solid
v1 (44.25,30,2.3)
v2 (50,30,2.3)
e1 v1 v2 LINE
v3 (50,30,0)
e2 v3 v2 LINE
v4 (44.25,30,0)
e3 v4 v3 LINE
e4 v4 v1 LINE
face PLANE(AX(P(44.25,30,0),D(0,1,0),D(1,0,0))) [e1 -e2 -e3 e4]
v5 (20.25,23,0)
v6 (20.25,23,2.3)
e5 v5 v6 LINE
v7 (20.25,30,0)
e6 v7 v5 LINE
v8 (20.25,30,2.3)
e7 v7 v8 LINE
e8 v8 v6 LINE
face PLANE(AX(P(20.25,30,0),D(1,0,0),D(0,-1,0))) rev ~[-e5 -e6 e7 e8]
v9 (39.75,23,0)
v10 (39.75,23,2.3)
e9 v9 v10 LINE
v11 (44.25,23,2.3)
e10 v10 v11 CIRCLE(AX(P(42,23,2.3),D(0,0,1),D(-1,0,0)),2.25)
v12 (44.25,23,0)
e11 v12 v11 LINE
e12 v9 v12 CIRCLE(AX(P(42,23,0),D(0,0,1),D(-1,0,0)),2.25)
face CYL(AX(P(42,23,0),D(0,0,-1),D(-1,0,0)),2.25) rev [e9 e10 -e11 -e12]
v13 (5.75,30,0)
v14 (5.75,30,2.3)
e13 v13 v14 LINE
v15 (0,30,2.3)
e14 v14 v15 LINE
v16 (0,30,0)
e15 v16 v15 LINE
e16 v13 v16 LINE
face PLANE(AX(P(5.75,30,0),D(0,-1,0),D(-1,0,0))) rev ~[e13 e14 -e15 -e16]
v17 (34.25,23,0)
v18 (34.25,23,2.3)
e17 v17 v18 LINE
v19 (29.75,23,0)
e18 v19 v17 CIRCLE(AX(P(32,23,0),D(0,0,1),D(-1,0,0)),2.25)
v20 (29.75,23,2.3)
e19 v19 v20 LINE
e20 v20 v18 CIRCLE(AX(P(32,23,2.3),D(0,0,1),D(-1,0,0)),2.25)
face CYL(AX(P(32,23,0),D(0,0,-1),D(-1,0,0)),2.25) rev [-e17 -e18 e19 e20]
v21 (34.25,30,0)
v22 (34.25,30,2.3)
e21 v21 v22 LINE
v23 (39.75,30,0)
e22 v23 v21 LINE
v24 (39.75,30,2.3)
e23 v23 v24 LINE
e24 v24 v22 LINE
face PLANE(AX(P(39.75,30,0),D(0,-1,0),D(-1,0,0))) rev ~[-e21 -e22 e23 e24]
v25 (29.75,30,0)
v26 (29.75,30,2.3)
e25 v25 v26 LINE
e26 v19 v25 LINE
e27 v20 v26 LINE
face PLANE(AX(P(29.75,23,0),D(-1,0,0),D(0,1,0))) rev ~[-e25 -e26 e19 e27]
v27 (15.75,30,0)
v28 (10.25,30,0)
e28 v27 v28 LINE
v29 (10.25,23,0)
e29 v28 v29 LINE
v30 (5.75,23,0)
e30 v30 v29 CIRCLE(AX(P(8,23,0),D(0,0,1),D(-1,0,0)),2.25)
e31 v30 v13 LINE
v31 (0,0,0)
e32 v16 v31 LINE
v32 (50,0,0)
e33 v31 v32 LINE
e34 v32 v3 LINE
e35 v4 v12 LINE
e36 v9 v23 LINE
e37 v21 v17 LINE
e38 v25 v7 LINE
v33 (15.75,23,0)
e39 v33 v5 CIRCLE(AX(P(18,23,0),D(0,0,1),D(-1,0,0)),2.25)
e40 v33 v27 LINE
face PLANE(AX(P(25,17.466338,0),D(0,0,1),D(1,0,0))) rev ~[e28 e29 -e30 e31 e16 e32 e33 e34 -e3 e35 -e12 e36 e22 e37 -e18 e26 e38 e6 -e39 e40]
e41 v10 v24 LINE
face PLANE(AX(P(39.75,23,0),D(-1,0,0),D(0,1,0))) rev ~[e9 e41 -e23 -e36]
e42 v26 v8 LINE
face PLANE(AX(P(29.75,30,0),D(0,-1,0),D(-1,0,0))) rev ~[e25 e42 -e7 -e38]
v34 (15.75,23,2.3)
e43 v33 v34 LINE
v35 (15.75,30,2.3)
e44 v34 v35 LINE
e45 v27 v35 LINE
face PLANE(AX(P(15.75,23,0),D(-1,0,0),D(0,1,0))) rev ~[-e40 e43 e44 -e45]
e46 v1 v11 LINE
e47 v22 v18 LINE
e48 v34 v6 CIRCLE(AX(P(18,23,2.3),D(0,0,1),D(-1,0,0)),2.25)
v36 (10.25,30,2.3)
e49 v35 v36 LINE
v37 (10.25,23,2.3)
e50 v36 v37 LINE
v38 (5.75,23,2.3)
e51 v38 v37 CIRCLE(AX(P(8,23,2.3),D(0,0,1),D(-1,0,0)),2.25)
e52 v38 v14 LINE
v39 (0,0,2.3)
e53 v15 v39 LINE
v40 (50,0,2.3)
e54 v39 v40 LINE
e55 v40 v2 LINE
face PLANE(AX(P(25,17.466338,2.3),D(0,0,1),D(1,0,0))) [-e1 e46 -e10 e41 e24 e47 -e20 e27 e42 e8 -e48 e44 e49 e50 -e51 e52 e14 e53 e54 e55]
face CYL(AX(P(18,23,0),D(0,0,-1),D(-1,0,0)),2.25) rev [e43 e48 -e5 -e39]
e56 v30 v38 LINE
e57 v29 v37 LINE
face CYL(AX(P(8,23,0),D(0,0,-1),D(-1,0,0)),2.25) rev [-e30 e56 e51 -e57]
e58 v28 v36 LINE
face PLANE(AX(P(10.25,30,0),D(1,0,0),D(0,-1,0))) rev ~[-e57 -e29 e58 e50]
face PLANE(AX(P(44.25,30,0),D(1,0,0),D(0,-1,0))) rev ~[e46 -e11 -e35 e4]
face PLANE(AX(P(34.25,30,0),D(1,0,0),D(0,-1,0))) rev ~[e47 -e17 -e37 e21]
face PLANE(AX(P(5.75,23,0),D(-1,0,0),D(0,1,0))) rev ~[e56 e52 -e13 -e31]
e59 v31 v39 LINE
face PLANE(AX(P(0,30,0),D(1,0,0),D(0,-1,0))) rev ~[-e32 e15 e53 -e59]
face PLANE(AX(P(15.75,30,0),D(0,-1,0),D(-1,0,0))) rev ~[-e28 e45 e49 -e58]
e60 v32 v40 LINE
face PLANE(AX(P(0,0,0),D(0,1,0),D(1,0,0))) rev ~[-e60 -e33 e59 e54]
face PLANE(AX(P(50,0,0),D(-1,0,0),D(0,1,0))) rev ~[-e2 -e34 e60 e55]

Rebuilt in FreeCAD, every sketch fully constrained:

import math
import FreeCAD as App
import Part
import Sketcher
from FreeCAD import Vector
Q = App.Units.Quantity

doc = App.newDocument("Part")
body = doc.addObject("PartDesign::Body", "Body")

# Sketch on XY plane
sketch1 = body.newObject("Sketcher::SketchObject", "Sketch")
sketch1.AttachmentSupport = (doc.getObject("XY_Plane"), [""])
sketch1.MapMode = "FlatFace"
sketch1.addGeometry(Part.LineSegment(Vector(0, 0, 0), Vector(50, 0, 0)), False)
sketch1.addGeometry(Part.LineSegment(Vector(50, 0, 0), Vector(50, 30, 0)), False)
sketch1.addGeometry(Part.LineSegment(Vector(50, 30, 0), Vector(44.25, 30, 0)), False)
sketch1.addGeometry(Part.LineSegment(Vector(44.25, 30, 0), Vector(44.25, 23, 0)), False)
sketch1.addGeometry(Part.ArcOfCircle(Part.Circle(Vector(42, 23, 0), Vector(0, 0, 1), 2.25), math.radians(180), math.radians(360)), False)
sketch1.addGeometry(Part.LineSegment(Vector(39.75, 23, 0), Vector(39.75, 30, 0)), False)
sketch1.addGeometry(Part.LineSegment(Vector(39.75, 30, 0), Vector(34.25, 30, 0)), False)
sketch1.addGeometry(Part.LineSegment(Vector(34.25, 30, 0), Vector(34.25, 23, 0)), False)
sketch1.addGeometry(Part.ArcOfCircle(Part.Circle(Vector(32, 23, 0), Vector(0, 0, 1), 2.25), math.radians(180), math.radians(360)), False)
sketch1.addGeometry(Part.LineSegment(Vector(29.75, 23, 0), Vector(29.75, 30, 0)), False)
sketch1.addGeometry(Part.LineSegment(Vector(29.75, 30, 0), Vector(20.25, 30, 0)), False)
sketch1.addGeometry(Part.LineSegment(Vector(20.25, 30, 0), Vector(20.25, 23, 0)), False)
sketch1.addGeometry(Part.ArcOfCircle(Part.Circle(Vector(18, 23, 0), Vector(0, 0, 1), 2.25), math.radians(180), math.radians(360)), False)
sketch1.addGeometry(Part.LineSegment(Vector(15.75, 23, 0), Vector(15.75, 30, 0)), False)
sketch1.addGeometry(Part.LineSegment(Vector(15.75, 30, 0), Vector(10.25, 30, 0)), False)
sketch1.addGeometry(Part.LineSegment(Vector(10.25, 30, 0), Vector(10.25, 23, 0)), False)
sketch1.addGeometry(Part.ArcOfCircle(Part.Circle(Vector(8, 23, 0), Vector(0, 0, 1), 2.25), math.radians(180), math.radians(360)), False)
sketch1.addGeometry(Part.LineSegment(Vector(5.75, 23, 0), Vector(5.75, 30, 0)), False)
sketch1.addGeometry(Part.LineSegment(Vector(5.75, 30, 0), Vector(0, 30, 0)), False)
sketch1.addGeometry(Part.LineSegment(Vector(0, 30, 0), Vector(0, 0, 0)), False)
sketch1.addConstraint(Sketcher.Constraint("Coincident", 0, 2, 1, 1))
sketch1.addConstraint(Sketcher.Constraint("Coincident", 1, 2, 2, 1))
sketch1.addConstraint(Sketcher.Constraint("Coincident", 2, 2, 3, 1))
sketch1.addConstraint(Sketcher.Constraint("Tangent", 3, 2, 4, 2))
sketch1.addConstraint(Sketcher.Constraint("Tangent", 4, 1, 5, 1))
sketch1.addConstraint(Sketcher.Constraint("Coincident", 5, 2, 6, 1))
sketch1.addConstraint(Sketcher.Constraint("Coincident", 6, 2, 7, 1))
sketch1.addConstraint(Sketcher.Constraint("Tangent", 7, 2, 8, 2))
sketch1.addConstraint(Sketcher.Constraint("Tangent", 8, 1, 9, 1))
sketch1.addConstraint(Sketcher.Constraint("Coincident", 9, 2, 10, 1))
sketch1.addConstraint(Sketcher.Constraint("Coincident", 10, 2, 11, 1))
sketch1.addConstraint(Sketcher.Constraint("Tangent", 11, 2, 12, 2))
sketch1.addConstraint(Sketcher.Constraint("Tangent", 12, 1, 13, 1))
sketch1.addConstraint(Sketcher.Constraint("Coincident", 13, 2, 14, 1))
sketch1.addConstraint(Sketcher.Constraint("Coincident", 14, 2, 15, 1))
sketch1.addConstraint(Sketcher.Constraint("Tangent", 15, 2, 16, 2))
sketch1.addConstraint(Sketcher.Constraint("Tangent", 16, 1, 17, 1))
sketch1.addConstraint(Sketcher.Constraint("Coincident", 17, 2, 18, 1))
sketch1.addConstraint(Sketcher.Constraint("Coincident", 18, 2, 19, 1))
sketch1.addConstraint(Sketcher.Constraint("Coincident", 19, 2, 0, 1))
sketch1.addConstraint(Sketcher.Constraint("Horizontal", 0))
sketch1.addConstraint(Sketcher.Constraint("Vertical", 1))
sketch1.addConstraint(Sketcher.Constraint("Horizontal", 2))
sketch1.addConstraint(Sketcher.Constraint("Vertical", 3))
sketch1.addConstraint(Sketcher.Constraint("Vertical", 5))
sketch1.addConstraint(Sketcher.Constraint("Horizontal", 6))
sketch1.addConstraint(Sketcher.Constraint("Vertical", 7))
sketch1.addConstraint(Sketcher.Constraint("Vertical", 9))
sketch1.addConstraint(Sketcher.Constraint("Horizontal", 10))
sketch1.addConstraint(Sketcher.Constraint("Vertical", 11))
sketch1.addConstraint(Sketcher.Constraint("Vertical", 13))
sketch1.addConstraint(Sketcher.Constraint("Horizontal", 14))
sketch1.addConstraint(Sketcher.Constraint("Vertical", 15))
sketch1.addConstraint(Sketcher.Constraint("Vertical", 17))
sketch1.addConstraint(Sketcher.Constraint("Horizontal", 18))
sketch1.addConstraint(Sketcher.Constraint("Vertical", 19))
sketch1.addConstraint(Sketcher.Constraint("Coincident", 19, 2, -1, 1))
sketch1.addConstraint(Sketcher.Constraint("Equal", 4, 8))
sketch1.addConstraint(Sketcher.Constraint("Equal", 8, 12))
sketch1.addConstraint(Sketcher.Constraint("Equal", 12, 16))
sketch1.addConstraint(Sketcher.Constraint("Horizontal", 4, 3, 8, 3))
sketch1.addConstraint(Sketcher.Constraint("Horizontal", 8, 3, 12, 3))
sketch1.addConstraint(Sketcher.Constraint("Horizontal", 12, 3, 16, 3))
sketch1.addConstraint(Sketcher.Constraint("Horizontal", 2, 2, 5, 2))
sketch1.addConstraint(Sketcher.Constraint("Horizontal", 6, 2, 9, 2))
sketch1.addConstraint(Sketcher.Constraint("Horizontal", 10, 2, 13, 2))
sketch1.addConstraint(Sketcher.Constraint("Horizontal", 14, 2, 17, 2))
sketch1.addConstraint(Sketcher.Constraint("Equal", 6, 14))
sketch1.addConstraint(Sketcher.Constraint("Equal", 2, 18))
sketch1.addConstraint(Sketcher.Constraint("DistanceX", 0, 1, 0, 2, Q("50 mm")))
sketch1.addConstraint(Sketcher.Constraint("DistanceY", 1, 1, 1, 2, Q("30 mm")))
sketch1.addConstraint(Sketcher.Constraint("DistanceY", 3, 2, 3, 1, Q("7 mm")))
sketch1.addConstraint(Sketcher.Constraint("Radius", 4, Q("2.25 mm")))
sketch1.addConstraint(Sketcher.Constraint("DistanceX", 6, 2, 6, 1, Q("5.5 mm")))
sketch1.addConstraint(Sketcher.Constraint("DistanceX", 10, 2, 10, 1, Q("9.5 mm")))
pad1 = body.newObject("PartDesign::Pad", "Pad")
pad1.Profile = sketch1
pad1.Length = 2.3

doc.recompute()
